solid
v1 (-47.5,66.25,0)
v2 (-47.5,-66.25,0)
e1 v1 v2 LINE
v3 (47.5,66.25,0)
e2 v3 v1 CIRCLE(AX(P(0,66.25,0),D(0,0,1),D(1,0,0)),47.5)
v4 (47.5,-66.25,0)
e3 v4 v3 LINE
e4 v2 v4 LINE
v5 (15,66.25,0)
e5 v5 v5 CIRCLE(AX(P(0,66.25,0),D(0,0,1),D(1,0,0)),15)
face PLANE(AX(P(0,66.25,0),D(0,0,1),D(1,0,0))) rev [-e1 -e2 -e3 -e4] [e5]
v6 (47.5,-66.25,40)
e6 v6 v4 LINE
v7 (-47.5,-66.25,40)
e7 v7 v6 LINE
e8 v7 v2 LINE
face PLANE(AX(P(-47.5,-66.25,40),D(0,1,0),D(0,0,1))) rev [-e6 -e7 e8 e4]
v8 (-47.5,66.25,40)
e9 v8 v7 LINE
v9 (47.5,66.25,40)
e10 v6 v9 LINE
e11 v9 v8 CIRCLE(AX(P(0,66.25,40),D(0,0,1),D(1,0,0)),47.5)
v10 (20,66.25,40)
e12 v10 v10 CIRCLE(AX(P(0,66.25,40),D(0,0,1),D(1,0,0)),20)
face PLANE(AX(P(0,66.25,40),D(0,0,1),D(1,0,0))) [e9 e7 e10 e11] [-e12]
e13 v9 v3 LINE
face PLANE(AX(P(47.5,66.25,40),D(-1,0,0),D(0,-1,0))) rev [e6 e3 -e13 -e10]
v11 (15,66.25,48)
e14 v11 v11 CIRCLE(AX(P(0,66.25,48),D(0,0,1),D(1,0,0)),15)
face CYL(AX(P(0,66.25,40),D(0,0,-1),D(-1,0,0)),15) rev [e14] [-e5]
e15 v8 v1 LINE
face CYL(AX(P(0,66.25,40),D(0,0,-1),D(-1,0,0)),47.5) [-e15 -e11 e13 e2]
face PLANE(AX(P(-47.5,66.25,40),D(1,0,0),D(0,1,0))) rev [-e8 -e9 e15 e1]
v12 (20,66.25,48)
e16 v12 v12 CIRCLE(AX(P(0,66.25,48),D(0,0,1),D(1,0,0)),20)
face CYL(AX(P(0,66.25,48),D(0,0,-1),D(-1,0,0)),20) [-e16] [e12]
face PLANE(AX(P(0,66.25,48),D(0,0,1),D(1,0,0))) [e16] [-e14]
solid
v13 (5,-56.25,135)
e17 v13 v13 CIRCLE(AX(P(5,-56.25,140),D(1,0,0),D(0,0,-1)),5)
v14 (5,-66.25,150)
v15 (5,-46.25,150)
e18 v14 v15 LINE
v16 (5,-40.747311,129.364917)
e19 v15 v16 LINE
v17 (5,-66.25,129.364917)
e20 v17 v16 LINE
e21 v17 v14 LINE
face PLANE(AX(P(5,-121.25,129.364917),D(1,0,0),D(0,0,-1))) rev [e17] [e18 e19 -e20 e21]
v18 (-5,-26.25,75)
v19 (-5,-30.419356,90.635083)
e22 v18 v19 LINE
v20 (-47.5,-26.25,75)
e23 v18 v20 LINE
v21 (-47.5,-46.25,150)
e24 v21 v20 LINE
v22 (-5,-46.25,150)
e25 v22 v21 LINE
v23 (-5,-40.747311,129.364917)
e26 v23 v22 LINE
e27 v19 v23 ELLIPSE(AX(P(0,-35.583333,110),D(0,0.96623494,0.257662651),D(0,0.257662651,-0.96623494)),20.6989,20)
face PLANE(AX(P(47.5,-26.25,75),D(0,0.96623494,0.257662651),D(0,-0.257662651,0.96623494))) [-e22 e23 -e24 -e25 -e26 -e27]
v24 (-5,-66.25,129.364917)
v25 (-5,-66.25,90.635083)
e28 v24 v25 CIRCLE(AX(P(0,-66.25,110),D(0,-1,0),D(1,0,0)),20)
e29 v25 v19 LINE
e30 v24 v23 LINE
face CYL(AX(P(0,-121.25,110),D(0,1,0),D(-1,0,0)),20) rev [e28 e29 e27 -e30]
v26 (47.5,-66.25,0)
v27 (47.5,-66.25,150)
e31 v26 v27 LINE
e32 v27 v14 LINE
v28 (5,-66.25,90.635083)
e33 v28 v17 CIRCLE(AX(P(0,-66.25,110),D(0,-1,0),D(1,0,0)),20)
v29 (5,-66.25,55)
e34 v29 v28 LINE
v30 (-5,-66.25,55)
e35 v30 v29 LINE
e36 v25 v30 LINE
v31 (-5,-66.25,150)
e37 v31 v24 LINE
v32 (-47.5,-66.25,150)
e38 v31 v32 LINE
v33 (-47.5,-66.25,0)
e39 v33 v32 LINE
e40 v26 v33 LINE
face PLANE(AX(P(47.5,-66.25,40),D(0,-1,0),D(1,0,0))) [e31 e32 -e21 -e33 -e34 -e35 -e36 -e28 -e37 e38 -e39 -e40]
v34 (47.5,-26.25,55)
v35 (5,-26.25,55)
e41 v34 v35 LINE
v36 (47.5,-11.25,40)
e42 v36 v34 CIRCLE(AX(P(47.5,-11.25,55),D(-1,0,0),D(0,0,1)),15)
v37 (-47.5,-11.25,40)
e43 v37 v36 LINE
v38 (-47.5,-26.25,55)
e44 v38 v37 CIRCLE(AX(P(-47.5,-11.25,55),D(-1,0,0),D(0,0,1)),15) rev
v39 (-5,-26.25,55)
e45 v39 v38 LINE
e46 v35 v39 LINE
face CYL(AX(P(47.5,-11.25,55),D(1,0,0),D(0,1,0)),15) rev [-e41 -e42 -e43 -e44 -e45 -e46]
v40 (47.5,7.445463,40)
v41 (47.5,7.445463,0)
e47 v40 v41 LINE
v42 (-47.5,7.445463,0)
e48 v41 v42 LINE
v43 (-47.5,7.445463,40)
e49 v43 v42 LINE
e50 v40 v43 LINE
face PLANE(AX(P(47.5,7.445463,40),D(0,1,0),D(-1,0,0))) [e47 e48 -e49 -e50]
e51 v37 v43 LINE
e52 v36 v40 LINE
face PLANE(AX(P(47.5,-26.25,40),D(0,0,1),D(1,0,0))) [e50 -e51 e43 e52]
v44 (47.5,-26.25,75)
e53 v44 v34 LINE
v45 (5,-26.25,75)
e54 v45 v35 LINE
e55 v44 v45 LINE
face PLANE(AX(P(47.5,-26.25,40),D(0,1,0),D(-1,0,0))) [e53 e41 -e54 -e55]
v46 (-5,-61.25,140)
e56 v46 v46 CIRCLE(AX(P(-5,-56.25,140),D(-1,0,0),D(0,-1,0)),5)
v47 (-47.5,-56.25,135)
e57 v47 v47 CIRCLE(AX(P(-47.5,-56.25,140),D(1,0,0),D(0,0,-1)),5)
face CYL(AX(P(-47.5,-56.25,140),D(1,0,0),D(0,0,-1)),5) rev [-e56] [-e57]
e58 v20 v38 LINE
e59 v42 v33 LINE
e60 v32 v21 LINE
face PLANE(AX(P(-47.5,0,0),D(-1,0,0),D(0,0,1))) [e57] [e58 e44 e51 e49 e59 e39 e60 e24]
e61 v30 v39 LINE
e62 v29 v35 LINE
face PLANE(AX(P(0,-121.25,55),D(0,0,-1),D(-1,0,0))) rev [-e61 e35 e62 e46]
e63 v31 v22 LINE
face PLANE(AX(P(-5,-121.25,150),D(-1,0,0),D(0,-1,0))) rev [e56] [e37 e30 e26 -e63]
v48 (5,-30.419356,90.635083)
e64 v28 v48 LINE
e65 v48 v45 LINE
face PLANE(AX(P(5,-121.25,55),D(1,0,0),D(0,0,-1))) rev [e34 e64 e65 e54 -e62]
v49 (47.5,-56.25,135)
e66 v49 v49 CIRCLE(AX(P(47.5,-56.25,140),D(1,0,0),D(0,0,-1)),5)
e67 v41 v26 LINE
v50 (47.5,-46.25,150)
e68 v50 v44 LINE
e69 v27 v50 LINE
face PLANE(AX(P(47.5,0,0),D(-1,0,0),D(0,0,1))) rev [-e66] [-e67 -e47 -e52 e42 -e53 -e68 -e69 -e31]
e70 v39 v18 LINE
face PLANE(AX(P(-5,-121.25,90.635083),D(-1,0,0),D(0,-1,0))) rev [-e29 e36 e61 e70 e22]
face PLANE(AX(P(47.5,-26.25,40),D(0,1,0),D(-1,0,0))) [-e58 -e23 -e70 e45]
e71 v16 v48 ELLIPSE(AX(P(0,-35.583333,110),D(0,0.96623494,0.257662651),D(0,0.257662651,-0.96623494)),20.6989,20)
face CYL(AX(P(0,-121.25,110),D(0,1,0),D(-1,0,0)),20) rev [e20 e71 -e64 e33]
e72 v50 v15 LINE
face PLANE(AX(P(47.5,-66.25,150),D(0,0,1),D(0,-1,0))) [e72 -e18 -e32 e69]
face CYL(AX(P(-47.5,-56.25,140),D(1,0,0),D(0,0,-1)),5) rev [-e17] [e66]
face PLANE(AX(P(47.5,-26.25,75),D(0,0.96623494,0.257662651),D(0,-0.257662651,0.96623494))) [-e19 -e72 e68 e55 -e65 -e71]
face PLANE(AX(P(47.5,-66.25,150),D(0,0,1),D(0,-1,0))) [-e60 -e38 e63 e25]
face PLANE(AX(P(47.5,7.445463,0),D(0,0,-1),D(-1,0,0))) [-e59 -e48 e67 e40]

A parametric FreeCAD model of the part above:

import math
import FreeCAD as App
import Part
import Sketcher
from FreeCAD import Vector


def edges_at(feature, points):
    """Names of the edges that pass closest to the given points."""
    edges = feature.Shape.Edges
    near = lambda p: min(range(len(edges)), key=lambda i: edges[i].distToShape(Part.Vertex(*p))[0])
    return sorted({f"Edge{near(p) + 1}" for p in points})


def add_polygon(sketch, points):
    """Adds a closed chain of lines whose ends are joined by coincident constraints."""
    first, n = sketch.GeometryCount, len(points)
    for a, b in zip(points, points[1:] + points[:1]):
        sketch.addGeometry(Part.LineSegment(App.Vector(*a, 0), App.Vector(*b, 0)), False)
    for i in range(n):
        sketch.addConstraint(Sketcher.Constraint("Coincident", first + i, 2, first + (i + 1) % n, 1))

doc = App.newDocument("Part")
body = doc.addObject("PartDesign::Body", "Body")

# Sketch on XY plane
sketch1 = body.newObject("Sketcher::SketchObject", "Sketch")
sketch1.AttachmentSupport = (doc.getObject("XY_Plane"), [""])
sketch1.MapMode = "FlatFace"
sketch1.addGeometry(Part.LineSegment(Vector(-48, 66, 0), Vector(-48, -66, 0)), False)
sketch1.addGeometry(Part.LineSegment(Vector(-48, -66, 0), Vector(48, -66, 0)), False)
sketch1.addGeometry(Part.LineSegment(Vector(48, -66, 0), Vector(48, 66, 0)), False)
sketch1.addGeometry(Part.ArcOfCircle(Part.Circle(Vector(0, 66, 0), Vector(0, 0, 1), 48), math.radians(0), math.radians(180)), False)
sketch1.addGeometry(Part.Circle(Vector(0, 66, 0), Vector(0, 0, 1), 15), False)
sketch1.addConstraint(Sketcher.Constraint("Coincident", 0, 2, 1, 1))
sketch1.addConstraint(Sketcher.Constraint("Coincident", 1, 2, 2, 1))
sketch1.addConstraint(Sketcher.Constraint("Tangent", 2, 2, 3, 1))
sketch1.addConstraint(Sketcher.Constraint("Tangent", 3, 2, 0, 1))
sketch1.addConstraint(Sketcher.Constraint("Vertical", 0))
sketch1.addConstraint(Sketcher.Constraint("Horizontal", 1))
sketch1.addConstraint(Sketcher.Constraint("Vertical", 2))
sketch1.addConstraint(Sketcher.Constraint("Coincident", 4, 3, 3, 3))
sketch1.addConstraint(Sketcher.Constraint("Symmetric", 0, 2, 2, 2, -1, 1))
sketch1.addConstraint(Sketcher.Constraint("Diameter", 4, 30.0))
sketch1.addConstraint(Sketcher.Constraint("Radius", 3, 47.5))
sketch1.addConstraint(Sketcher.Constraint("DistanceY", 0, 2, 0, 1, 132.5))
pad1 = body.newObject("PartDesign::Pad", "Pad")
pad1.Profile = sketch1
pad1.Length = 40

# Sketch on XY plane
sketch2 = body.newObject("Sketcher::SketchObject", "Sketch001")
sketch2.AttachmentSupport = (doc.getObject("XY_Plane"), [""])
sketch2.MapMode = "FlatFace"
sketch2.AttachmentOffset = App.Placement(Vector(0, 0, 40), App.Rotation())
sketch2.addGeometry(Part.Circle(Vector(0, 66, 0), Vector(0, 0, 1), 20), False)
sketch2.addGeometry(Part.Circle(Vector(0, 66, 0), Vector(0, 0, 1), 15), False)
sketch2.addConstraint(Sketcher.Constraint("Coincident", 1, 3, 0, 3))
sketch2.addConstraint(Sketcher.Constraint("PointOnObject", 0, 3, -2))
sketch2.addConstraint(Sketcher.Constraint("Diameter", 0, 40.0))
sketch2.addConstraint(Sketcher.Constraint("Diameter", 1, 30.0))
sketch2.addConstraint(Sketcher.Constraint("DistanceY", -1, 1, 0, 3, 66.25))
pad2 = body.newObject("PartDesign::Pad", "Pad001")
pad2.Profile = sketch2
pad2.Length = 8
body2 = doc.addObject("PartDesign::Body", "Body001")

# Sketch on YZ plane
sketch3 = body2.newObject("Sketcher::SketchObject", "Sketch002")
sketch3.AttachmentSupport = (doc.getObject("YZ_Plane001"), [""])
sketch3.MapMode = "FlatFace"
sketch3.AttachmentOffset = App.Placement(Vector(0, 0, -47.5), App.Rotation())
add_polygon(sketch3, [(-26, 75), (-26, 40), (7, 40), (7, 0), (-66, 0), (-66, 150), (-46, 150)])  # lines 0-6
sketch3.addConstraint(Sketcher.Constraint("Vertical", 0))
sketch3.addConstraint(Sketcher.Constraint("Horizontal", 1))
sketch3.addConstraint(Sketcher.Constraint("Vertical", 2))
sketch3.addConstraint(Sketcher.Constraint("Horizontal", 3))
sketch3.addConstraint(Sketcher.Constraint("Vertical", 4))
sketch3.addConstraint(Sketcher.Constraint("Horizontal", 5))
sketch3.addConstraint(Sketcher.Constraint("PointOnObject", 2, 2, -1))
sketch3.addConstraint(Sketcher.Constraint("DistanceX", 5, 1, 5, 2, 20.0))
sketch3.addConstraint(Sketcher.Constraint("DistanceY", 0, 2, 0, 1, 35.0))
sketch3.addConstraint(Sketcher.Constraint("DistanceY", 2, 2, 2, 1, 40.0))
sketch3.addConstraint(Sketcher.Constraint("DistanceY", 4, 1, 4, 2, 150.0))
sketch3.addConstraint(Sketcher.Constraint("DistanceX", 3, 2, 0, 2, 40.0))
sketch3.addConstraint(Sketcher.Constraint("DistanceX", 0, 2, -1, 1, 26.25))
sketch3.addConstraint(Sketcher.Constraint("DistanceX", 1, 1, 1, 2, 33.695463))
pad3 = body2.newObject("PartDesign::Pad", "Pad002")
pad3.Profile = sketch3
pad3.Length = 95
doc.recompute()

fillet = body2.newObject("PartDesign::Fillet", "Fillet")
fillet.Base = (pad3, edges_at(pad3, [(0, -26.25, 40)]))
fillet.Radius = 15

# Sketch on XZ plane
sketch4 = body2.newObject("Sketcher::SketchObject", "Sketch003")
sketch4.AttachmentSupport = (doc.getObject("XZ_Plane001"), [""])
sketch4.MapMode = "FlatFace"
sketch4.AttachmentOffset = App.Placement(Vector(0, 0, 26.25), App.Rotation())
sketch4.addGeometry(Part.LineSegment(Vector(5, 91, 0), Vector(5, 55, 0)), False)
sketch4.addGeometry(Part.LineSegment(Vector(5, 55, 0), Vector(-5, 55, 0)), False)
sketch4.addGeometry(Part.LineSegment(Vector(-5, 55, 0), Vector(-5, 91, 0)), False)
sketch4.addGeometry(Part.ArcOfCircle(Part.Circle(Vector(0, 110, 0), Vector(0, 0, 1), 20), math.radians(104), math.radians(256)), False)
sketch4.addGeometry(Part.LineSegment(Vector(-5, 129, 0), Vector(-5, 150, 0)), False)
sketch4.addGeometry(Part.LineSegment(Vector(-5, 150, 0), Vector(5, 150, 0)), False)
sketch4.addGeometry(Part.LineSegment(Vector(5, 150, 0), Vector(5, 129, 0)), False)
sketch4.addGeometry(Part.ArcOfCircle(Part.Circle(Vector(0, 110, 0), Vector(0, 0, 1), 20), math.radians(-76), math.radians(76)), False)
sketch4.addConstraint(Sketcher.Constraint("Coincident", 0, 2, 1, 1))
sketch4.addConstraint(Sketcher.Constraint("Coincident", 1, 2, 2, 1))
sketch4.addConstraint(Sketcher.Constraint("Coincident", 2, 2, 3, 2))
sketch4.addConstraint(Sketcher.Constraint("Coincident", 3, 1, 4, 1))
sketch4.addConstraint(Sketcher.Constraint("Coincident", 4, 2, 5, 1))
sketch4.addConstraint(Sketcher.Constraint("Coincident", 5, 2, 6, 1))
sketch4.addConstraint(Sketcher.Constraint("Coincident", 6, 2, 7, 2))
sketch4.addConstraint(Sketcher.Constraint("Coincident", 7, 1, 0, 1))
sketch4.addConstraint(Sketcher.Constraint("Vertical", 0))
sketch4.addConstraint(Sketcher.Constraint("Horizontal", 1))
sketch4.addConstraint(Sketcher.Constraint("Vertical", 2))
sketch4.addConstraint(Sketcher.Constraint("Vertical", 4))
sketch4.addConstraint(Sketcher.Constraint("Horizontal", 5))
sketch4.addConstraint(Sketcher.Constraint("Vertical", 6))
sketch4.addConstraint(Sketcher.Constraint("Coincident", 7, 3, 3, 3))
sketch4.addConstraint(Sketcher.Constraint("Equal", 3, 7))
sketch4.addConstraint(Sketcher.Constraint("Symmetric", 3, 1, 6, 2, -2))
sketch4.addConstraint(Sketcher.Constraint("Horizontal", 2, 2, 7, 1))
sketch4.addConstraint(Sketcher.Constraint("Vertical", 2, 2, 3, 1))
sketch4.addConstraint(Sketcher.Constraint("Radius", 3, 20.0))
sketch4.addConstraint(Sketcher.Constraint("DistanceX", 1, 2, 1, 1, 10.0))
sketch4.addConstraint(Sketcher.Constraint("DistanceY", -1, 1, 3, 3, 110.0))
sketch4.addConstraint(Sketcher.Constraint("DistanceY", -1, 1, 0, 2, 55.0))
sketch4.addConstraint(Sketcher.Constraint("DistanceY", -1, 1, 4, 2, 150.0))
pocket1 = body2.newObject("PartDesign::Pocket", "Pocket")
pocket1.Profile = sketch4
pocket1.Length = 95
pocket1.Reversed = True

# Sketch on YZ plane
sketch5 = body2.newObject("Sketcher::SketchObject", "Sketch004")
sketch5.AttachmentSupport = (doc.getObject("YZ_Plane001"), [""])
sketch5.MapMode = "FlatFace"
sketch5.AttachmentOffset = App.Placement(Vector(0, 0, 47.5), App.Rotation())
sketch5.addGeometry(Part.Circle(Vector(-56, 140, 0), Vector(0, 0, 1), 5), False)
sketch5.addConstraint(Sketcher.Constraint("Diameter", 0, 10.0))
sketch5.addConstraint(Sketcher.Constraint("DistanceY", -1, 1, 0, 3, 140.0))
sketch5.addConstraint(Sketcher.Constraint("DistanceX", 0, 3, -1, 1, 56.25))
pocket2 = body2.newObject("PartDesign::Pocket", "Pocket001")
pocket2.Profile = sketch5
pocket2.Length = 95

doc.recompute()
